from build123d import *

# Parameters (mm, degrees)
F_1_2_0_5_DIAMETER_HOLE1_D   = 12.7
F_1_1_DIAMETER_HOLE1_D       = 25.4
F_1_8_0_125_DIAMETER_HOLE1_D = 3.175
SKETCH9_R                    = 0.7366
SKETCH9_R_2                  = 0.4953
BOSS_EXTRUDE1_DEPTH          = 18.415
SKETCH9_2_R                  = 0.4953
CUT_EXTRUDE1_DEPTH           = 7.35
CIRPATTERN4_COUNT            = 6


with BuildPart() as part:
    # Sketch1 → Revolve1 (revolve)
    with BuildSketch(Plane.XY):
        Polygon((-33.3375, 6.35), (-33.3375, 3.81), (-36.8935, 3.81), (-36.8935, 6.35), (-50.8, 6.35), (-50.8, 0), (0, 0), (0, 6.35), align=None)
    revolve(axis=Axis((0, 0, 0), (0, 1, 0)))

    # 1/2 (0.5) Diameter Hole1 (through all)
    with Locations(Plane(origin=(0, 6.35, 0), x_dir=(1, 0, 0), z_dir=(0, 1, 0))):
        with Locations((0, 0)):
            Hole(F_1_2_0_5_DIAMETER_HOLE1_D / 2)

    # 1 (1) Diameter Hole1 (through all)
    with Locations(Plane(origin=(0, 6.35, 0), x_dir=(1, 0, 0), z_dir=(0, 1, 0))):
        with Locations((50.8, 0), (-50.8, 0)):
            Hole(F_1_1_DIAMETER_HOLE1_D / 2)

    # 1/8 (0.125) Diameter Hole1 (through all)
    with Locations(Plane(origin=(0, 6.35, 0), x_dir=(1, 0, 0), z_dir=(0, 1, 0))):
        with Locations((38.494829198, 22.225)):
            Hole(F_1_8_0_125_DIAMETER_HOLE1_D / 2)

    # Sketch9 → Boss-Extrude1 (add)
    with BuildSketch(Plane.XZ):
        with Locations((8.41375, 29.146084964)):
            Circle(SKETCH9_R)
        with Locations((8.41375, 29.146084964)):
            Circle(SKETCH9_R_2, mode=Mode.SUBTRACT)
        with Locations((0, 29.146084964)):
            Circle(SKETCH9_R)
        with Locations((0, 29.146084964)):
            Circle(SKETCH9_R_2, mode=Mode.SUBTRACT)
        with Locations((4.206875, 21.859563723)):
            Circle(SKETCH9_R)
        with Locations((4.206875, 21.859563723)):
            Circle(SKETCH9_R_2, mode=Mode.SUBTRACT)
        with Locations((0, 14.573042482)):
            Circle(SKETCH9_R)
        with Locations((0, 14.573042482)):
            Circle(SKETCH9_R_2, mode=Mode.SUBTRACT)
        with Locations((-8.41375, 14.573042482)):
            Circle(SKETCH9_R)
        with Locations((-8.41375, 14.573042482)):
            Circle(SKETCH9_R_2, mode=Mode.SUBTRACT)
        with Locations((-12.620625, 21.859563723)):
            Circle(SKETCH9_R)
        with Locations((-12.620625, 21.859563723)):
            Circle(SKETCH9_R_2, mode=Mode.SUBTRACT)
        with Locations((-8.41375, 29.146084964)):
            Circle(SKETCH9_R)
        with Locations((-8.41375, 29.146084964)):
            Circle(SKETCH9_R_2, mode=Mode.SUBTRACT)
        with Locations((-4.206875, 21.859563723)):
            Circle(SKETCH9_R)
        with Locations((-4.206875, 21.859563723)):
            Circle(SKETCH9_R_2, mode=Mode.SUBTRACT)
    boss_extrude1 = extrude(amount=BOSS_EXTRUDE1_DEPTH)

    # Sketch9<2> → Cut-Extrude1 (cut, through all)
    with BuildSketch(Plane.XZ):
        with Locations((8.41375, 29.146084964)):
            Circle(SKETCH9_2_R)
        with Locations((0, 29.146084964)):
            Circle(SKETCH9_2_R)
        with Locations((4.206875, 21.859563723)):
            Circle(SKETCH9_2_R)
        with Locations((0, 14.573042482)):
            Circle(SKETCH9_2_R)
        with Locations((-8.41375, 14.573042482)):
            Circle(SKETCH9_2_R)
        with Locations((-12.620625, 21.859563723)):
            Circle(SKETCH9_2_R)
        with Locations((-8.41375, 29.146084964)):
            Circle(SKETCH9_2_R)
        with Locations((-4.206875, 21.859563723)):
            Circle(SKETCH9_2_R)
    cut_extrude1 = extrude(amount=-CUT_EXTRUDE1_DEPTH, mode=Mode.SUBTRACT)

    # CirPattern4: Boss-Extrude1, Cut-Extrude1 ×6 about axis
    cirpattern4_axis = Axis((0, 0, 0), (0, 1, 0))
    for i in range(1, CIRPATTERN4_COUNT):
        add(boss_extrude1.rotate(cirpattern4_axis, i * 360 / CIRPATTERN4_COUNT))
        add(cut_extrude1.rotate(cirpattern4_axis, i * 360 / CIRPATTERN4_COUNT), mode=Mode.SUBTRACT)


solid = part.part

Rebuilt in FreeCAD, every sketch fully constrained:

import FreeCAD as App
import Part
import Sketcher
from FreeCAD import Vector
Q = App.Units.Quantity


def add_polygon(sketch, points):
    """Adds a closed chain of lines whose ends are joined by coincident constraints."""
    first, n = sketch.GeometryCount, len(points)
    for a, b in zip(points, points[1:] + points[:1]):
        sketch.addGeometry(Part.LineSegment(App.Vector(*a, 0), App.Vector(*b, 0)), False)
    for i in range(n):
        sketch.addConstraint(Sketcher.Constraint("Coincident", first + i, 2, first + (i + 1) % n, 1))

doc = App.newDocument("Part")
body = doc.addObject("PartDesign::Body", "Body")

sketch1 = body.newObject("Sketcher::SketchObject", "Sketch")
sketch1.AttachmentSupport = (doc.getObject("XY_Plane"), [""])
sketch1.MapMode = "FlatFace"
add_polygon(sketch1, [(-33.3, 6.3), (-33.3, 3.8), (-36.9, 3.8), (-36.9, 6.3), (-50.8, 6.3), (-50.8, 0), (0, 0), (0, 6.3)])
sketch1.addConstraint([
    Sketcher.Constraint("Vertical", 0),
    Sketcher.Constraint("Horizontal", 1),
    Sketcher.Constraint("Vertical", 2),
    Sketcher.Constraint("Horizontal", 3),
    Sketcher.Constraint("Vertical", 4),
    Sketcher.Constraint("Horizontal", 5),
    Sketcher.Constraint("Vertical", 6),
    Sketcher.Constraint("Horizontal", 7),
    Sketcher.Constraint("Coincident", 5, 2, -1, 1),
    Sketcher.Constraint("Horizontal", 3, 2, 6, 2),
    Sketcher.Constraint("DistanceX", 5, 1, 5, 2, Q("2 in")),
    Sketcher.Constraint("DistanceY", 0, 2, 0, 1, Q("0.1 in")),
    Sketcher.Constraint("DistanceX", 1, 2, 1, 1, Q("0.14 in")),
    Sketcher.Constraint("DistanceY", 4, 2, 4, 1, Q("0.25 in")),
    Sketcher.Constraint("DistanceX", 7, 2, 7, 1, Q("1.3125 in")),
])
revolution = body.newObject("PartDesign::Revolution", "Revolution")
revolution.Profile = sketch1
revolution.ReferenceAxis = (sketch1, ["V_Axis"])
revolution.Angle = 360

sketch2 = body.newObject("Sketcher::SketchObject", "Sketch001")
sketch2.AttachmentSupport = (doc.getObject("XZ_Plane"), [""])
sketch2.MapMode = "FlatFace"
sketch2.AttachmentOffset = App.Placement(Vector(0, 0, -0.25 * 25.4), App.Rotation())
sketch2.addGeometry(Part.Circle(Vector(0, 0, 0), Vector(0, 0, 1), 6), False)
sketch2.addConstraint([
    Sketcher.Constraint("Coincident", 0, 3, -1, 1),
    Sketcher.Constraint("Diameter", 0, Q("0.5 in")),
])
doc.recompute()
hole = body.newObject("PartDesign::Hole", "Hole")
hole.Profile = sketch2
hole.ThreadType = "None"
hole.Diameter = Q("0.5 in")
hole.DepthType = "ThroughAll"
hole.Reversed = True

sketch3 = body.newObject("Sketcher::SketchObject", "Sketch002")
sketch3.AttachmentSupport = (doc.getObject("XZ_Plane"), [""])
sketch3.MapMode = "FlatFace"
sketch3.AttachmentOffset = App.Placement(Vector(0, 0, -0.25 * 25.4), App.Rotation())
sketch3.addGeometry([
    Part.Circle(Vector(51, 0, 0), Vector(0, 0, 1), 13),
    Part.Circle(Vector(-51, 0, 0), Vector(0, 0, 1), 13),
], False)
sketch3.addConstraint([
    Sketcher.Constraint("Equal", 0, 1),
    Sketcher.Constraint("Symmetric", 0, 3, 1, 3, -1, 1),
    Sketcher.Constraint("PointOnObject", 0, 3, -1),
    Sketcher.Constraint("Diameter", 0, Q("1 in")),
    Sketcher.Constraint("DistanceX", -1, 1, 0, 3, Q("2 in")),
])
doc.recompute()
hole2 = body.newObject("PartDesign::Hole", "Hole001")
hole2.Profile = sketch3
hole2.ThreadType = "None"
hole2.Diameter = Q("1 in")
hole2.DepthType = "ThroughAll"
hole2.Reversed = True

sketch4 = body.newObject("Sketcher::SketchObject", "Sketch003")
sketch4.AttachmentSupport = (doc.getObject("XZ_Plane"), [""])
sketch4.MapMode = "FlatFace"
sketch4.AttachmentOffset = App.Placement(Vector(0, 0, -0.25 * 25.4), App.Rotation())
sketch4.addGeometry(Part.Circle(Vector(38.5, -22.2, 0), Vector(0, 0, 1), 1.6), False)
sketch4.addConstraint([
    Sketcher.Constraint("Diameter", 0, Q("0.125 in")),
    Sketcher.Constraint("DistanceY", 0, 3, -1, 1, Q("0.875 in")),
    Sketcher.Constraint("DistanceX", -1, 1, 0, 3, Q("38.494829 mm")),
])
doc.recompute()
hole3 = body.newObject("PartDesign::Hole", "Hole002")
hole3.Profile = sketch4
hole3.ThreadType = "None"
hole3.Diameter = Q("0.125 in")
hole3.DepthType = "ThroughAll"
hole3.Reversed = True

sketch5 = body.newObject("Sketcher::SketchObject", "Sketch004")
sketch5.AttachmentSupport = (doc.getObject("XZ_Plane"), [""])
sketch5.MapMode = "FlatFace"
sketch5.addGeometry([
    Part.Circle(Vector(8.41, 29.15, 0), Vector(0, 0, 1), 0.74),
    Part.Circle(Vector(8.41, 29.15, 0), Vector(0, 0, 1), 0.5),
    Part.Circle(Vector(0, 29.15, 0), Vector(0, 0, 1), 0.74),
    Part.Circle(Vector(0, 29.15, 0), Vector(0, 0, 1), 0.5),
    Part.Circle(Vector(4.21, 21.86, 0), Vector(0, 0, 1), 0.74),
    Part.Circle(Vector(4.21, 21.86, 0), Vector(0, 0, 1), 0.5),
    Part.Circle(Vector(0, 14.57, 0), Vector(0, 0, 1), 0.74),
    Part.Circle(Vector(0, 14.57, 0), Vector(0, 0, 1), 0.5),
    Part.Circle(Vector(-8.41, 14.57, 0), Vector(0, 0, 1), 0.74),
    Part.Circle(Vector(-8.41, 14.57, 0), Vector(0, 0, 1), 0.5),
    Part.Circle(Vector(-12.62, 21.86, 0), Vector(0, 0, 1), 0.74),
    Part.Circle(Vector(-12.62, 21.86, 0), Vector(0, 0, 1), 0.5),
    Part.Circle(Vector(-8.41, 29.15, 0), Vector(0, 0, 1), 0.74),
    Part.Circle(Vector(-8.41, 29.15, 0), Vector(0, 0, 1), 0.5),
    Part.Circle(Vector(-4.21, 21.86, 0), Vector(0, 0, 1), 0.74),
    Part.Circle(Vector(-4.21, 21.86, 0), Vector(0, 0, 1), 0.5),
], False)
sketch5.addConstraint([
    Sketcher.Constraint("Coincident", 1, 3, 0, 3),
    Sketcher.Constraint("Coincident", 3, 3, 2, 3),
    Sketcher.Constraint("Coincident", 5, 3, 4, 3),
    Sketcher.Constraint("Coincident", 7, 3, 6, 3),
    Sketcher.Constraint("Coincident", 9, 3, 8, 3),
    Sketcher.Constraint("Coincident", 11, 3, 10, 3),
    Sketcher.Constraint("Coincident", 13, 3, 12, 3),
    Sketcher.Constraint("Coincident", 15, 3, 14, 3),
    Sketcher.Constraint("Equal", 0, 2),
    Sketcher.Constraint("Equal", 1, 3),
    Sketcher.Constraint("Equal", 2, 4),
    Sketcher.Constraint("Equal", 3, 5),
    Sketcher.Constraint("Equal", 4, 6),
    Sketcher.Constraint("Equal", 5, 7),
    Sketcher.Constraint("Equal", 6, 8),
    Sketcher.Constraint("Equal", 7, 9),
    Sketcher.Constraint("Equal", 8, 10),
    Sketcher.Constraint("Equal", 9, 11),
    Sketcher.Constraint("Equal", 10, 12),
    Sketcher.Constraint("Equal", 11, 13),
    Sketcher.Constraint("Equal", 12, 14),
    Sketcher.Constraint("Equal", 13, 15),
    Sketcher.Constraint("Symmetric", 0, 3, 12, 3, -2),
    Sketcher.Constraint("Symmetric", 4, 3, 14, 3, -2),
    Sketcher.Constraint("PointOnObject", 2, 3, -2),
    Sketcher.Constraint("PointOnObject", 6, 3, -2),
    Sketcher.Constraint("Horizontal", 1, 3, 2, 3),
    Sketcher.Constraint("Horizontal", 7, 3, 8, 3),
    Sketcher.Constraint("Horizontal", 5, 3, 10, 3),
    Sketcher.Constraint("Vertical", 9, 3, 12, 3),
    Sketcher.Constraint("Diameter", 0, Q("0.058 in")),
    Sketcher.Constraint("Diameter", 1, Q("0.039 in")),
    Sketcher.Constraint("DistanceX", -1, 1, 0, 3, Q("8.41375 mm")),
    Sketcher.Constraint("DistanceY", 4, 3, 0, 3, Q("7.286521 mm")),
    Sketcher.Constraint("DistanceY", 6, 3, 4, 3, Q("7.286521 mm")),
    Sketcher.Constraint("DistanceY", -1, 1, 0, 3, Q("29.146085 mm")),
    Sketcher.Constraint("DistanceX", -1, 1, 4, 3, Q("4.206875 mm")),
    Sketcher.Constraint("DistanceX", 10, 3, -1, 1, Q("12.620625 mm")),
])
pad1 = body.newObject("PartDesign::Pad", "Pad")
pad1.Profile = sketch5
pad1.Length = Q("0.725 in")

sketch6 = body.newObject("Sketcher::SketchObject", "Sketch005")
sketch6.AttachmentSupport = (doc.getObject("XZ_Plane"), [""])
sketch6.MapMode = "FlatFace"
sketch6.addGeometry([
    Part.Circle(Vector(8.41, 29.15, 0), Vector(0, 0, 1), 0.5),
    Part.Circle(Vector(0, 29.15, 0), Vector(0, 0, 1), 0.5),
    Part.Circle(Vector(4.21, 21.86, 0), Vector(0, 0, 1), 0.5),
    Part.Circle(Vector(0, 14.57, 0), Vector(0, 0, 1), 0.5),
    Part.Circle(Vector(-8.41, 14.57, 0), Vector(0, 0, 1), 0.5),
    Part.Circle(Vector(-12.62, 21.86, 0), Vector(0, 0, 1), 0.5),
    Part.Circle(Vector(-8.41, 29.15, 0), Vector(0, 0, 1), 0.5),
    Part.Circle(Vector(-4.21, 21.86, 0), Vector(0, 0, 1), 0.5),
], False)
sketch6.addConstraint([
    Sketcher.Constraint("Equal", 0, 1),
    Sketcher.Constraint("Equal", 1, 2),
    Sketcher.Constraint("Equal", 2, 3),
    Sketcher.Constraint("Equal", 3, 4),
    Sketcher.Constraint("Equal", 4, 5),
    Sketcher.Constraint("Equal", 5, 6),
    Sketcher.Constraint("Equal", 6, 7),
    Sketcher.Constraint("Symmetric", 0, 3, 6, 3, -2),
    Sketcher.Constraint("Symmetric", 2, 3, 7, 3, -2),
    Sketcher.Constraint("PointOnObject", 1, 3, -2),
    Sketcher.Constraint("PointOnObject", 3, 3, -2),
    Sketcher.Constraint("Horizontal", 0, 3, 1, 3),
    Sketcher.Constraint("Horizontal", 3, 3, 4, 3),
    Sketcher.Constraint("Horizontal", 2, 3, 5, 3),
    Sketcher.Constraint("Vertical", 4, 3, 6, 3),
    Sketcher.Constraint("Diameter", 0, Q("0.039 in")),
    Sketcher.Constraint("DistanceX", 5, 3, 0, 3, Q("0.828125 in")),
    Sketcher.Constraint("DistanceX", 4, 3, 0, 3, Q("0.6625 in")),
    Sketcher.Constraint("DistanceX", 5, 3, 2, 3, Q("0.6625 in")),
    Sketcher.Constraint("DistanceY", 2, 3, 0, 3, Q("7.286521 mm")),
    Sketcher.Constraint("DistanceY", 3, 3, 2, 3, Q("7.286521 mm")),
    Sketcher.Constraint("DistanceY", -1, 1, 0, 3, Q("29.146085 mm")),
])
pocket1 = body.newObject("PartDesign::Pocket", "Pocket")
pocket1.Profile = sketch6
pocket1.Type = "ThroughAll"
doc.recompute()

polarpattern = body.newObject("PartDesign::PolarPattern", "PolarPattern")
polarpattern.Originals = [pad1, pocket1]
polarpattern.Axis = (doc.getObject("Y_Axis"), [""])
polarpattern.Angle = 360
polarpattern.Occurrences = 6
body.Tip = polarpattern

doc.recompute()
